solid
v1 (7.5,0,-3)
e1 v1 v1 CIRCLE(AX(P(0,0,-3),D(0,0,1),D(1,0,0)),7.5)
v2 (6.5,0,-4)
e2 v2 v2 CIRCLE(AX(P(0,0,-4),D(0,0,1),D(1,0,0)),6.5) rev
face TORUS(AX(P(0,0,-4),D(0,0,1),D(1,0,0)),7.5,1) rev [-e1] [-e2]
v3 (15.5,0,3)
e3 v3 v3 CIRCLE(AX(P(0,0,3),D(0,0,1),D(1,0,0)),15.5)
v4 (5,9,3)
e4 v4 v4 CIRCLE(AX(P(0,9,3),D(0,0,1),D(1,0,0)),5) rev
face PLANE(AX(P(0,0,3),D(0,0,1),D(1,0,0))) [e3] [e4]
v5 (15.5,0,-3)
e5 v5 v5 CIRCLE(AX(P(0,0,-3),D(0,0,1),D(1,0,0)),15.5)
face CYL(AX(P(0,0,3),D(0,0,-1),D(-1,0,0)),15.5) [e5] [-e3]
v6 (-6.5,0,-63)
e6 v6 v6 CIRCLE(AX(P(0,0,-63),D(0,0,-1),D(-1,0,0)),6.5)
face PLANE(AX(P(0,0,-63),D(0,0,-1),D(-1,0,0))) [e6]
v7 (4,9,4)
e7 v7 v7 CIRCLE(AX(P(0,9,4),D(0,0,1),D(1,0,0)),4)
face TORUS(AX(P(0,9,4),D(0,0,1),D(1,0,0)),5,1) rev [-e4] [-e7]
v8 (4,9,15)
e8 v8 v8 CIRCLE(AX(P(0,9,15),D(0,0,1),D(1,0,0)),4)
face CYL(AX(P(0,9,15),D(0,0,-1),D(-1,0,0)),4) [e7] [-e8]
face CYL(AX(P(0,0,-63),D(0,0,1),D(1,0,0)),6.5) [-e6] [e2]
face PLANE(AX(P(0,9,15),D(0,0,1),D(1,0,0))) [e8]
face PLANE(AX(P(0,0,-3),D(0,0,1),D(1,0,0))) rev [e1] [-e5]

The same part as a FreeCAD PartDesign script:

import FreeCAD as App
import Part
import Sketcher
from FreeCAD import Vector
Q = App.Units.Quantity


def edges_at(feature, points):
    """Names of the edges that pass closest to the given points."""
    edges = feature.Shape.Edges
    near = lambda p: min(range(len(edges)), key=lambda i: edges[i].distToShape(Part.Vertex(*p))[0])
    return sorted({f"Edge{near(p) + 1}" for p in points})

doc = App.newDocument("Part")
body = doc.addObject("PartDesign::Body", "Body")

sketch1 = body.newObject("Sketcher::SketchObject", "Sketch")
sketch1.AttachmentSupport = (doc.getObject("XY_Plane"), [""])
sketch1.MapMode = "FlatFace"
sketch1.addGeometry(Part.Circle(Vector(0, 0, 0), Vector(0, 0, 1), 15.5), False)
sketch1.addConstraint([
    Sketcher.Constraint("Coincident", 0, 3, -1, 1),
    Sketcher.Constraint("Diameter", 0, Q("31 mm")),
])
pad1 = body.newObject("PartDesign::Pad", "Pad")
pad1.Profile = sketch1
pad1.Length = 6
pad1.Midplane = True

sketch2 = body.newObject("Sketcher::SketchObject", "Sketch001")
sketch2.AttachmentSupport = (doc.getObject("XY_Plane"), [""])
sketch2.MapMode = "FlatFace"
sketch2.AttachmentOffset = App.Placement(Vector(0, 0, 3), App.Rotation())
sketch2.addGeometry(Part.Circle(Vector(0, 9, 0), Vector(0, 0, 1), 4), False)
sketch2.addConstraint([
    Sketcher.Constraint("PointOnObject", 0, 3, -2),
    Sketcher.Constraint("Diameter", 0, Q("8 mm")),
    Sketcher.Constraint("DistanceY", -1, 1, 0, 3, Q("9 mm")),
])
pad2 = body.newObject("PartDesign::Pad", "Pad001")
pad2.Profile = sketch2
pad2.Length = 12

sketch3 = body.newObject("Sketcher::SketchObject", "Sketch002")
sketch3.AttachmentSupport = (doc.getObject("XY_Plane"), [""])
sketch3.MapMode = "FlatFace"
sketch3.AttachmentOffset = App.Placement(Vector(0, 0, -3), App.Rotation())
sketch3.addGeometry(Part.Circle(Vector(0, 0, 0), Vector(0, 0, 1), 6.5), False)
sketch3.addConstraint([
    Sketcher.Constraint("Coincident", 0, 3, -1, 1),
    Sketcher.Constraint("Diameter", 0, Q("13 mm")),
])
pad3 = body.newObject("PartDesign::Pad", "Pad002")
pad3.Profile = sketch3
pad3.Length = 60
pad3.Reversed = True
doc.recompute()

fillet = body.newObject("PartDesign::Fillet", "Fillet")
fillet.Base = (pad3, edges_at(pad3, [(-4, 9, 3), (6.5, 0, -3)]))
fillet.Radius = 1

doc.recompute()
